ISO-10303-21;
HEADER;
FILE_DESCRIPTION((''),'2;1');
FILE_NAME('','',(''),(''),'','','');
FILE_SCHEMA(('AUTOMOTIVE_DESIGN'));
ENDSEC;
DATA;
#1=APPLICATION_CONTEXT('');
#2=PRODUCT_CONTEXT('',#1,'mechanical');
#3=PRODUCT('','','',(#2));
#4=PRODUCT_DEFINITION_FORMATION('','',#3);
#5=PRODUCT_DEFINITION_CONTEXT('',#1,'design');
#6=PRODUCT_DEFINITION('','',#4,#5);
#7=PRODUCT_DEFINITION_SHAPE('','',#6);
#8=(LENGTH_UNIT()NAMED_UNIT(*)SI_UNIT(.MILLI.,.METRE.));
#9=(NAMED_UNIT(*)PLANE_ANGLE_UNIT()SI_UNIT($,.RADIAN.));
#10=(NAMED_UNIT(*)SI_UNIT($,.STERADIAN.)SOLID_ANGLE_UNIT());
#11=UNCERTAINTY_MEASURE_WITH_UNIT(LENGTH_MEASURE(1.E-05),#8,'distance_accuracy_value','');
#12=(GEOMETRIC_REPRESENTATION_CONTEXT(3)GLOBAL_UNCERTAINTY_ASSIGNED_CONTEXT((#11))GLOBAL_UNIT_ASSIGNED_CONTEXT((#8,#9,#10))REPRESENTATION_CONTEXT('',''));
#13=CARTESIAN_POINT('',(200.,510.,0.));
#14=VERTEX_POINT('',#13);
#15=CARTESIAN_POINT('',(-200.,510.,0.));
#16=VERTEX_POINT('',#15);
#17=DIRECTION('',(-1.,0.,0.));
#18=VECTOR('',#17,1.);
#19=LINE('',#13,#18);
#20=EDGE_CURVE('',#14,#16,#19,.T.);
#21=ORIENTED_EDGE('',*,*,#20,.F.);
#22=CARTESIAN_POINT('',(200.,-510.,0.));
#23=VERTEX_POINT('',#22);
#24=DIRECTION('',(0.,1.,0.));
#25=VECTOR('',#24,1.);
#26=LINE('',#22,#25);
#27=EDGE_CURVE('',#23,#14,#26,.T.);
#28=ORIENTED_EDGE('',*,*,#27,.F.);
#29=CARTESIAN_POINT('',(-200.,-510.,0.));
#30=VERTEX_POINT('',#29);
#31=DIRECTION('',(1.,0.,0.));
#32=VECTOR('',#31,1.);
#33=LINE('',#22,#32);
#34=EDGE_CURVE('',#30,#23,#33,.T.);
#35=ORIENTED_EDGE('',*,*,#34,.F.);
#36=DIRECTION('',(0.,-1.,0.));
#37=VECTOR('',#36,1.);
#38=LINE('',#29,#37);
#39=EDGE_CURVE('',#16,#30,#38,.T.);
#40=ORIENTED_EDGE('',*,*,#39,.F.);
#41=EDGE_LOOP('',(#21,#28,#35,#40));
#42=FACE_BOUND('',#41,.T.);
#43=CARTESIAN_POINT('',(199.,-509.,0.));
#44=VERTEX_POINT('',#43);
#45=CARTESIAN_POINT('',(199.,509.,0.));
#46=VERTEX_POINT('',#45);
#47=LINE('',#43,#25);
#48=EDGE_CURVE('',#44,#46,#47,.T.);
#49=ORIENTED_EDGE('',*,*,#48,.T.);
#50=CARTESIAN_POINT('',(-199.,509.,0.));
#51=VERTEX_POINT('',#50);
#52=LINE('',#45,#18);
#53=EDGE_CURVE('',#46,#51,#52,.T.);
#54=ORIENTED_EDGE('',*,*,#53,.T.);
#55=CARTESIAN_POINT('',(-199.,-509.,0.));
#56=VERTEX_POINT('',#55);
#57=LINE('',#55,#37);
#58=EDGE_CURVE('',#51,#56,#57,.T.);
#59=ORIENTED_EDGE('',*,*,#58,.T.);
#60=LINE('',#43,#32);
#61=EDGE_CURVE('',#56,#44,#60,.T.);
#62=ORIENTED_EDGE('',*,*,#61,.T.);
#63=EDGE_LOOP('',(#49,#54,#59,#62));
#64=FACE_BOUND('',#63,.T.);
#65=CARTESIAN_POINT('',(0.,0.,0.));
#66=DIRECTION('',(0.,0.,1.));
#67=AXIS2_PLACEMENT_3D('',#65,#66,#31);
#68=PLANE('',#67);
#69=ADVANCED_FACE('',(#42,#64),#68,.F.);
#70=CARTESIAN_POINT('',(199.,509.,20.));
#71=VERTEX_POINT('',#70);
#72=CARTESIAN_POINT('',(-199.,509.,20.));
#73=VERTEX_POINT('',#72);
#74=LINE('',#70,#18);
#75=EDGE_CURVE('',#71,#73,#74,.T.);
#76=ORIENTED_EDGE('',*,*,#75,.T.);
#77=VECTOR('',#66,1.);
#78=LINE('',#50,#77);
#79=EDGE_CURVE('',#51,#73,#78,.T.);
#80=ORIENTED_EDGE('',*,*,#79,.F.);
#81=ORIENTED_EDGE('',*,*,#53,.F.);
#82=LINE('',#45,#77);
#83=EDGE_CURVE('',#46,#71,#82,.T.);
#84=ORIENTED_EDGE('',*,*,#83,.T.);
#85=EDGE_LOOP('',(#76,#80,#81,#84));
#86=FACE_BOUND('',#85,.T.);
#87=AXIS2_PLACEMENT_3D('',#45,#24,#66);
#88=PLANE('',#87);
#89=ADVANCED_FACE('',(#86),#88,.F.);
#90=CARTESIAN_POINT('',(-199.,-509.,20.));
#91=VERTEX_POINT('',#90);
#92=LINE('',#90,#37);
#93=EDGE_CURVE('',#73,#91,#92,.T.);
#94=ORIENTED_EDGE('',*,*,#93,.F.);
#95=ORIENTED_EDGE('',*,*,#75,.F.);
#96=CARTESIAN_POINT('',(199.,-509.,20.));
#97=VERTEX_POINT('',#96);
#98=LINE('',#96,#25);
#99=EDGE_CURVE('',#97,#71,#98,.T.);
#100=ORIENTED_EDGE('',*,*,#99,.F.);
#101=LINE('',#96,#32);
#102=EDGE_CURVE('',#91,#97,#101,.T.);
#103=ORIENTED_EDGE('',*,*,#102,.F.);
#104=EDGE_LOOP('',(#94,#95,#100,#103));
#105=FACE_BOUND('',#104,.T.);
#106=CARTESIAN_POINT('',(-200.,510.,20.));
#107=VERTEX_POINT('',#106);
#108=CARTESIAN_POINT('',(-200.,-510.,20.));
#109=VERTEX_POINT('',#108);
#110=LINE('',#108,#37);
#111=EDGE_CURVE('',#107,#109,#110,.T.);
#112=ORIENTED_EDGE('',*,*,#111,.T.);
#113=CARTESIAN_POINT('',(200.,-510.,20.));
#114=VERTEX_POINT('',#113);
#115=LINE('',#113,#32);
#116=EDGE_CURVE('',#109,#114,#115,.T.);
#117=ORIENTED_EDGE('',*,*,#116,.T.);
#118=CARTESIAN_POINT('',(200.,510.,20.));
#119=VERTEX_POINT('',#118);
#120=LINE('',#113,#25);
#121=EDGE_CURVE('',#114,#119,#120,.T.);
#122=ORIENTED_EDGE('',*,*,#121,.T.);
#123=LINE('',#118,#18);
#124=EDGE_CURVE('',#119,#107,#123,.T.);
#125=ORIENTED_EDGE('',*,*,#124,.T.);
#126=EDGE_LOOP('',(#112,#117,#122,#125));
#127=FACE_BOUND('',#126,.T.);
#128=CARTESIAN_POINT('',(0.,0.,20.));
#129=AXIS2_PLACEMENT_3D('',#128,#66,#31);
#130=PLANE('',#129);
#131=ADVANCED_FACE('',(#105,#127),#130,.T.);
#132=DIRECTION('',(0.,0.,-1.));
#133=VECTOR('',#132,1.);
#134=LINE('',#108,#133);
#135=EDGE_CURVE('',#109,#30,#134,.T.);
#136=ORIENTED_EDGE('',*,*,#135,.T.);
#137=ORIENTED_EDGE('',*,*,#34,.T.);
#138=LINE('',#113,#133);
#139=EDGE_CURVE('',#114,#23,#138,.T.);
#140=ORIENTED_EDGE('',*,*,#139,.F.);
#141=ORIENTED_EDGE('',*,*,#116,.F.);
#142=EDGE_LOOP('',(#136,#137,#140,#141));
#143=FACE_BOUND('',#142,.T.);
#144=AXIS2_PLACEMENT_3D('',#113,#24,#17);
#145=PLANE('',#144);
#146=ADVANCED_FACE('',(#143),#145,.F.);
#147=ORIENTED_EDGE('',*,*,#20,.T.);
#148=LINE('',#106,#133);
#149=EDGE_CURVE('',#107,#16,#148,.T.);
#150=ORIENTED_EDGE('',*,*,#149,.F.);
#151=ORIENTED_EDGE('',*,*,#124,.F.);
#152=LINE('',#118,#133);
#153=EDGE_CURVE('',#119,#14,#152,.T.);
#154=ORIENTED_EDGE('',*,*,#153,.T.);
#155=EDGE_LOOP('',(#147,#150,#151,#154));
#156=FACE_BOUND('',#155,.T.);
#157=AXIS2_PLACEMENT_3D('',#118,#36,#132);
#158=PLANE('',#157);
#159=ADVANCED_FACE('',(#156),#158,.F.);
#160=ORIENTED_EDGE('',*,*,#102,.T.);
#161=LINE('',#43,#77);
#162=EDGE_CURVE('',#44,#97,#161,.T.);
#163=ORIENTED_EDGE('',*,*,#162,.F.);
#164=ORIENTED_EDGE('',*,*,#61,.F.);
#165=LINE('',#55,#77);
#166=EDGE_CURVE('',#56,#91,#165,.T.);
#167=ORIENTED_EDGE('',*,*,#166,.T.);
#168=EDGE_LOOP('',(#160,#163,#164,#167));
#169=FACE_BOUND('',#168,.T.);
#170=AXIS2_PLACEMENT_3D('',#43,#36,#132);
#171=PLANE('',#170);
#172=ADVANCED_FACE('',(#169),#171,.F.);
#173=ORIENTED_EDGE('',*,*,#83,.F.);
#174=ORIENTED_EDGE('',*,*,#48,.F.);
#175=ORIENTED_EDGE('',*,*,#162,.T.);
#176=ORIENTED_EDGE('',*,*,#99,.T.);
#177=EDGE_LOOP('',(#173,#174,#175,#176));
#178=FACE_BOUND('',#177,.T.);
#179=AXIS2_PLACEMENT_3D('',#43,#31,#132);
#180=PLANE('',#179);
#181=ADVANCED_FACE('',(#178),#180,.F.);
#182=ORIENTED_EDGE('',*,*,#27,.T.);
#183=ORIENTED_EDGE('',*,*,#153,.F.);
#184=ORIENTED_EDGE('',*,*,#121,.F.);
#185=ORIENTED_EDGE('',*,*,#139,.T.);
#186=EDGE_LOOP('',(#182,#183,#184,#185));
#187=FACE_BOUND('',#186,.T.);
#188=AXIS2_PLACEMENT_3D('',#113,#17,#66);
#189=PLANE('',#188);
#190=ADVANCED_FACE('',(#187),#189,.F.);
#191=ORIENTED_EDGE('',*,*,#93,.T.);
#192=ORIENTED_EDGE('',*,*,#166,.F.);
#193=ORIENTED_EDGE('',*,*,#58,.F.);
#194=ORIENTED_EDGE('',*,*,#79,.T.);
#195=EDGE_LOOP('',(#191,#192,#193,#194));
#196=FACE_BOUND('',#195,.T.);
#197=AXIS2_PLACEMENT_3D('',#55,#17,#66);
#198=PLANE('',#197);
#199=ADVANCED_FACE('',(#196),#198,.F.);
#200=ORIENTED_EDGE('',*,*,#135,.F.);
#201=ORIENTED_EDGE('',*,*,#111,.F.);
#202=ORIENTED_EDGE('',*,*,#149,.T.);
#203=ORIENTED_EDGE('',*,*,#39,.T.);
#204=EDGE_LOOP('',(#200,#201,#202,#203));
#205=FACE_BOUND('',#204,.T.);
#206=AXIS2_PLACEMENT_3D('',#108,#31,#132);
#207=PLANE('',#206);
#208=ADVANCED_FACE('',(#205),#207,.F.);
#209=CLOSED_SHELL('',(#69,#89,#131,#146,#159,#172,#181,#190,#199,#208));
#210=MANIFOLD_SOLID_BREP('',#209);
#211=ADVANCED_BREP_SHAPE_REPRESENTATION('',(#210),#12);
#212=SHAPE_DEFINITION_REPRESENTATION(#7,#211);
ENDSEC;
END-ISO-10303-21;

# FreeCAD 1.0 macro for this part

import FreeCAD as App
import Part
import Sketcher
from FreeCAD import Vector
Q = App.Units.Quantity


def add_polygon(sketch, points):
    """Adds a closed chain of lines whose ends are joined by coincident constraints."""
    first, n = sketch.GeometryCount, len(points)
    for a, b in zip(points, points[1:] + points[:1]):
        sketch.addGeometry(Part.LineSegment(App.Vector(*a, 0), App.Vector(*b, 0)), False)
    for i in range(n):
        sketch.addConstraint(Sketcher.Constraint("Coincident", first + i, 2, first + (i + 1) % n, 1))

doc = App.newDocument("Part")
body = doc.addObject("PartDesign::Body", "Body")

# Sketch on XY plane
sketch1 = body.newObject("Sketcher::SketchObject", "Sketch")
sketch1.AttachmentSupport = (doc.getObject("XY_Plane"), [""])
sketch1.MapMode = "FlatFace"
add_polygon(sketch1, [(-200, 510), (-200, -510), (200, -510), (200, 510)])  # lines 0-3
sketch1.addConstraint(Sketcher.Constraint("Vertical", 0))
sketch1.addConstraint(Sketcher.Constraint("Horizontal", 1))
sketch1.addConstraint(Sketcher.Constraint("Vertical", 2))
sketch1.addConstraint(Sketcher.Constraint("Horizontal", 3))
sketch1.addConstraint(Sketcher.Constraint("Symmetric", 0, 2, 2, 2, -1, 1))
sketch1.addConstraint(Sketcher.Constraint("DistanceX", 1, 1, 1, 2, Q("400 mm")))
sketch1.addConstraint(Sketcher.Constraint("DistanceY", 0, 2, 0, 1, Q("1020 mm")))
pad1 = body.newObject("PartDesign::Pad", "Pad")
pad1.Profile = sketch1
pad1.Length = 20

# Sketch on XY plane
sketch2 = body.newObject("Sketcher::SketchObject", "Sketch001")
sketch2.AttachmentSupport = (doc.getObject("XY_Plane"), [""])
sketch2.MapMode = "FlatFace"
sketch2.AttachmentOffset = App.Placement(Vector(0, 0, 20), App.Rotation())
add_polygon(sketch2, [(-199, 509), (-199, -509), (199, -509), (199, 509)])  # lines 0-3
sketch2.addConstraint(Sketcher.Constraint("Vertical", 0))
sketch2.addConstraint(Sketcher.Constraint("Horizontal", 1))
sketch2.addConstraint(Sketcher.Constraint("Vertical", 2))
sketch2.addConstraint(Sketcher.Constraint("Horizontal", 3))
sketch2.addConstraint(Sketcher.Constraint("Symmetric", 0, 2, 2, 2, -1, 1))
sketch2.addConstraint(Sketcher.Constraint("DistanceX", 1, 1, 1, 2, Q("398 mm")))
sketch2.addConstraint(Sketcher.Constraint("DistanceY", 0, 2, 0, 1, Q("1018 mm")))
pocket1 = body.newObject("PartDesign::Pocket", "Pocket")
pocket1.Profile = sketch2
pocket1.Length = 20

doc.recompute()
